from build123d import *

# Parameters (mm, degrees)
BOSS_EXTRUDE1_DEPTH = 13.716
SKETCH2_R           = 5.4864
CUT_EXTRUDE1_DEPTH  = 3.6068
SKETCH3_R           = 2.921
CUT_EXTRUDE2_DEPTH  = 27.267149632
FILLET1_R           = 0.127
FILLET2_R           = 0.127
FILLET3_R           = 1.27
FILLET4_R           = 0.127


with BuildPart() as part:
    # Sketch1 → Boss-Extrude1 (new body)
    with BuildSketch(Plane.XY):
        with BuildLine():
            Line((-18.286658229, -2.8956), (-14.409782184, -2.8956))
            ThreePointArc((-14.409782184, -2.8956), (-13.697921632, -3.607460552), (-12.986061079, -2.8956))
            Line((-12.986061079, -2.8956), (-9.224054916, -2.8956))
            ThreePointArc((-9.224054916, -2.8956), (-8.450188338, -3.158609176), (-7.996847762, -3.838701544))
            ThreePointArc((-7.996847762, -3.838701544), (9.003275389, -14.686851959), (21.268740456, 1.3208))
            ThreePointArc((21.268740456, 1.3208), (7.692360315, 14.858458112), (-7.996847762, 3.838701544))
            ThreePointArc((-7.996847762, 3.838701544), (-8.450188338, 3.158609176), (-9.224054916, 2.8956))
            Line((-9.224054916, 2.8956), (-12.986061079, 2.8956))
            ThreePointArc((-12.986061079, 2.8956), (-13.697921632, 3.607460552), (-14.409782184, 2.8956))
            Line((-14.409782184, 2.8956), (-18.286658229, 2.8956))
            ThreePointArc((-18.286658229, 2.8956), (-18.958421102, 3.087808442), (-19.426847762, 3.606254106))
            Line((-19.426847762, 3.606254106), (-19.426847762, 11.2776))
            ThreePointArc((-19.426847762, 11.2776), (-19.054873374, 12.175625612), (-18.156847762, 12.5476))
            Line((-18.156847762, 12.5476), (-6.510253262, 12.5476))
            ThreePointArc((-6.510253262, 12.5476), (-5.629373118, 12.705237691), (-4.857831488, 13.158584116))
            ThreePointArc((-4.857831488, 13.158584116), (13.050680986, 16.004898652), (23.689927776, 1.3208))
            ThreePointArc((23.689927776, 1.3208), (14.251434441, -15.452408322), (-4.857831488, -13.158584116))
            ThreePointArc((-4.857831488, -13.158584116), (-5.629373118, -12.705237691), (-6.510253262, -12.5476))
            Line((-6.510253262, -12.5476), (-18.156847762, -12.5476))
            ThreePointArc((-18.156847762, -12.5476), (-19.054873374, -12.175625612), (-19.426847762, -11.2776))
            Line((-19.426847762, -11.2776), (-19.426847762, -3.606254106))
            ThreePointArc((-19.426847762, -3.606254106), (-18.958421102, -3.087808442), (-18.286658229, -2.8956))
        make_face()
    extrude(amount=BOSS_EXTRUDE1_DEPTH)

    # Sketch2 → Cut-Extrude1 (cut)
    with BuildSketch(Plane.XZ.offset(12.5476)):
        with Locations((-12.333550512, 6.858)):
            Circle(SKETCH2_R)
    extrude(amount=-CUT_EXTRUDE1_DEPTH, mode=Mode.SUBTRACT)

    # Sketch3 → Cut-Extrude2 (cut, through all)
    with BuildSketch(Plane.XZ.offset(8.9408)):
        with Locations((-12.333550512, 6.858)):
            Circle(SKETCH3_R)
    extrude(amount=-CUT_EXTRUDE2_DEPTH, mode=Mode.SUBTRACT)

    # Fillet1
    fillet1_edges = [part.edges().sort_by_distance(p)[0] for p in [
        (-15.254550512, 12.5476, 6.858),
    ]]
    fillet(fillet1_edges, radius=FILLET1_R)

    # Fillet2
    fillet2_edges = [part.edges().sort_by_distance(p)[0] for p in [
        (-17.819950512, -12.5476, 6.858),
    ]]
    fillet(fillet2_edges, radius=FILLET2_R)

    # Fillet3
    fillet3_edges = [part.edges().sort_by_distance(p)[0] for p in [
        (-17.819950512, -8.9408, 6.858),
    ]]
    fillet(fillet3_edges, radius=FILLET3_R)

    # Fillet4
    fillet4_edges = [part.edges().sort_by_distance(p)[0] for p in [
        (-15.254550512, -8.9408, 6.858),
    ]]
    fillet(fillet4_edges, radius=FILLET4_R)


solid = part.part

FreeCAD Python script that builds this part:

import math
import FreeCAD as App
import Part
import Sketcher
Q = App.Units.Quantity


def edges_at(feature, points):
    """Names of the edges that pass closest to the given points."""
    edges = feature.Shape.Edges
    near = lambda p: min(range(len(edges)), key=lambda i: edges[i].distToShape(Part.Vertex(*p))[0])
    return sorted({f"Edge{near(p) + 1}" for p in points})

doc = App.newDocument("Part")
body = doc.addObject("PartDesign::Body", "Body")

# Sketch on XY plane
sketch1 = body.newObject("Sketcher::SketchObject", "Sketch")
sketch1.AttachmentSupport = (doc.getObject("XY_Plane"), [""])
sketch1.MapMode = "FlatFace"
sketch1.addGeometry([
    Part.LineSegment(App.Vector(-14.4, -2.9, 0), App.Vector(-18.3, -2.9, 0)),  # 0
    Part.ArcOfCircle(Part.Circle(App.Vector(-18.3, -4.2, 0), App.Vector(0, 0, 1), 1.3), math.radians(90), math.radians(154)),  # 1
    Part.LineSegment(App.Vector(-19.4, -3.6, 0), App.Vector(-19.4, -11.3, 0)),  # 2
    Part.ArcOfCircle(Part.Circle(App.Vector(-18.2, -11.3, 0), App.Vector(0, 0, 1), 1.3), math.radians(180), math.radians(270)),  # 3
    Part.LineSegment(App.Vector(-18.2, -12.5, 0), App.Vector(-6.5, -12.5, 0)),  # 4
    Part.ArcOfCircle(Part.Circle(App.Vector(-6.5, -15.1, 0), App.Vector(0, 0, 1), 2.5), math.radians(49), math.radians(90)),  # 5
    Part.ArcOfCircle(Part.Circle(App.Vector(6.4, 0, 0), App.Vector(0, 0, 1), 17.3), math.radians(-131), math.radians(4)),  # 6
    Part.ArcOfCircle(Part.Circle(App.Vector(6.4, 0, 0), App.Vector(0, 0, 1), 17.3), math.radians(4), math.radians(131)),  # 7
    Part.ArcOfCircle(Part.Circle(App.Vector(-6.5, 15.1, 0), App.Vector(0, 0, 1), 2.5), math.radians(-90), math.radians(-49)),  # 8
    Part.LineSegment(App.Vector(-6.5, 12.5, 0), App.Vector(-18.2, 12.5, 0)),  # 9
    Part.ArcOfCircle(Part.Circle(App.Vector(-18.2, 11.3, 0), App.Vector(0, 0, 1), 1.3), math.radians(90), math.radians(180)),  # 10
    Part.LineSegment(App.Vector(-19.4, 11.3, 0), App.Vector(-19.4, 3.6, 0)),  # 11
    Part.ArcOfCircle(Part.Circle(App.Vector(-18.3, 4.2, 0), App.Vector(0, 0, 1), 1.3), math.radians(-154), math.radians(-90)),  # 12
    Part.LineSegment(App.Vector(-18.3, 2.9, 0), App.Vector(-14.4, 2.9, 0)),  # 13
    Part.ArcOfCircle(Part.Circle(App.Vector(-13.7, 2.9, 0), App.Vector(0, 0, 1), 0.7), math.radians(0), math.radians(180)),  # 14
    Part.LineSegment(App.Vector(-13, 2.9, 0), App.Vector(-9.2, 2.9, 0)),  # 15
    Part.ArcOfCircle(Part.Circle(App.Vector(-9.2, 4.2, 0), App.Vector(0, 0, 1), 1.3), math.radians(-90), math.radians(-15)),  # 16
    Part.ArcOfCircle(Part.Circle(App.Vector(6.4, 0, 0), App.Vector(0, 0, 1), 14.9), math.radians(5), math.radians(165)),  # 17
    Part.ArcOfCircle(Part.Circle(App.Vector(6.4, 0, 0), App.Vector(0, 0, 1), 14.9), math.radians(-165), math.radians(5)),  # 18
    Part.ArcOfCircle(Part.Circle(App.Vector(-9.2, -4.2, 0), App.Vector(0, 0, 1), 1.3), math.radians(15), math.radians(90)),  # 19
    Part.LineSegment(App.Vector(-9.2, -2.9, 0), App.Vector(-13, -2.9, 0)),  # 20
    Part.ArcOfCircle(Part.Circle(App.Vector(-13.7, -2.9, 0), App.Vector(0, 0, 1), 0.7), math.radians(-180), math.radians(0)),  # 21
], False)
sketch1.addConstraint([
    Sketcher.Constraint("Tangent", 0, 2, 1, 1),
    Sketcher.Constraint("Coincident", 1, 2, 2, 1),
    Sketcher.Constraint("Tangent", 2, 2, 3, 1),
    Sketcher.Constraint("Tangent", 3, 2, 4, 1),
    Sketcher.Constraint("Tangent", 4, 2, 5, 2),
    Sketcher.Constraint("Tangent", 5, 1, 6, 1),
    Sketcher.Constraint("Tangent", 6, 2, 7, 1),
    Sketcher.Constraint("Tangent", 7, 2, 8, 2),
    Sketcher.Constraint("Tangent", 8, 1, 9, 1),
    Sketcher.Constraint("Tangent", 9, 2, 10, 1),
    Sketcher.Constraint("Tangent", 10, 2, 11, 1),
    Sketcher.Constraint("Coincident", 11, 2, 12, 1),
    Sketcher.Constraint("Tangent", 12, 2, 13, 1),
    Sketcher.Constraint("Coincident", 13, 2, 14, 2),
    Sketcher.Constraint("Coincident", 14, 1, 15, 1),
    Sketcher.Constraint("Tangent", 15, 2, 16, 1),
    Sketcher.Constraint("Tangent", 16, 2, 17, 2),
    Sketcher.Constraint("Tangent", 17, 1, 18, 2),
    Sketcher.Constraint("Tangent", 18, 1, 19, 1),
    Sketcher.Constraint("Tangent", 19, 2, 20, 1),
    Sketcher.Constraint("Coincident", 20, 2, 21, 2),
    Sketcher.Constraint("Coincident", 21, 1, 0, 1),
    Sketcher.Constraint("Horizontal", 0),
    Sketcher.Constraint("Vertical", 2),
    Sketcher.Constraint("Horizontal", 4),
    Sketcher.Constraint("Horizontal", 9),
    Sketcher.Constraint("Vertical", 11),
    Sketcher.Constraint("Horizontal", 13),
    Sketcher.Constraint("Horizontal", 15),
    Sketcher.Constraint("Horizontal", 20),
    Sketcher.Constraint("Coincident", 17, 3, 6, 3),
    Sketcher.Constraint("Equal", 1, 3),
    Sketcher.Constraint("Equal", 6, 7),
    Sketcher.Constraint("Equal", 5, 8),
    Sketcher.Constraint("Equal", 3, 10),
    Sketcher.Constraint("Equal", 10, 12),
    Sketcher.Constraint("Equal", 12, 16),
    Sketcher.Constraint("Equal", 17, 18),
    Sketcher.Constraint("Equal", 16, 19),
    Sketcher.Constraint("Equal", 14, 21),
    Sketcher.Constraint("Symmetric", 5, 3, 8, 3, -1),
    Sketcher.Constraint("Symmetric", 1, 3, 12, 3, -1),
    Sketcher.Constraint("Symmetric", 14, 3, 21, 3, -1),
    Sketcher.Constraint("Horizontal", 12, 3, 16, 3),
    Sketcher.Constraint("Horizontal", 1, 3, 19, 3),
    Sketcher.Constraint("Horizontal", 21, 3, 0, 2),
    Sketcher.Constraint("Horizontal", 6, 2, 17, 1),
    Sketcher.Constraint("Vertical", 3, 3, 10, 3),
    Sketcher.Constraint("Radius", 5, Q("0.1 in")),
    Sketcher.Constraint("Radius", 1, Q("0.05 in")),
    Sketcher.Constraint("DistanceY", 3, 3, 1, 3, Q("0.28 in")),
    Sketcher.Constraint("DistanceY", 1, 3, -1, 1, Q("0.164 in")),
    Sketcher.Constraint("DistanceY", -1, 1, 6, 2, Q("0.052 in")),
    Sketcher.Constraint("Radius", 6, Q("17.32635 mm")),
    Sketcher.Constraint("Radius", 14, Q("0.711861 mm")),
    Sketcher.Constraint("Radius", 17, Q("14.91335 mm")),
    Sketcher.Constraint("DistanceX", 0, 2, 0, 1, Q("3.876876 mm")),
    Sketcher.Constraint("DistanceX", 4, 1, 4, 2, Q("11.646595 mm")),
    Sketcher.Constraint("DistanceX", 15, 1, 15, 2, Q("3.762006 mm")),
    Sketcher.Constraint("DistanceX", 1, 3, -1, 1, Q("18.286658 mm")),
])
pad1 = body.newObject("PartDesign::Pad", "Pad")
pad1.Profile = sketch1
pad1.Length = Q("0.54 in")

# Sketch on XZ plane
sketch2 = body.newObject("Sketcher::SketchObject", "Sketch001")
sketch2.AttachmentSupport = (doc.getObject("XZ_Plane"), [""])
sketch2.MapMode = "FlatFace"
sketch2.AttachmentOffset = App.Placement(App.Vector(0, 0, 0.494 * 25.4), App.Rotation())
sketch2.addGeometry(Part.Circle(App.Vector(-12, 7, 0), App.Vector(0, 0, 1), 5), False)
sketch2.addConstraint([
    Sketcher.Constraint("Diameter", 0, Q("0.432 in")),
    Sketcher.Constraint("DistanceY", -1, 1, 0, 3, Q("0.27 in")),
    Sketcher.Constraint("DistanceX", 0, 3, -1, 1, Q("12.333551 mm")),
])
pocket1 = body.newObject("PartDesign::Pocket", "Pocket")
pocket1.Profile = sketch2
pocket1.Length = Q("0.142 in")

# Sketch on XZ plane
sketch3 = body.newObject("Sketcher::SketchObject", "Sketch002")
sketch3.AttachmentSupport = (doc.getObject("XZ_Plane"), [""])
sketch3.MapMode = "FlatFace"
sketch3.AttachmentOffset = App.Placement(App.Vector(0, 0, 0.352 * 25.4), App.Rotation())
sketch3.addGeometry(Part.Circle(App.Vector(-12.3, 6.9, 0), App.Vector(0, 0, 1), 2.9), False)
sketch3.addConstraint([
    Sketcher.Constraint("Diameter", 0, Q("0.23 in")),
    Sketcher.Constraint("DistanceY", -1, 1, 0, 3, Q("0.27 in")),
    Sketcher.Constraint("DistanceX", 0, 3, -1, 1, Q("12.333551 mm")),
])
pocket2 = body.newObject("PartDesign::Pocket", "Pocket001")
pocket2.Profile = sketch3
pocket2.Type = "ThroughAll"
doc.recompute()

fillet = body.newObject("PartDesign::Fillet", "Fillet")
fillet.Base = (pocket2, edges_at(pocket2, [(-15.255, 12.548, 6.858)]))
fillet.Radius = Q("0.005 in")
doc.recompute()

fillet2 = body.newObject("PartDesign::Fillet", "Fillet001")
fillet2.Base = (fillet, edges_at(fillet, [(-17.82, -12.548, 6.858)]))
fillet2.Radius = Q("0.005 in")
doc.recompute()

fillet3 = body.newObject("PartDesign::Fillet", "Fillet002")
fillet3.Base = (fillet2, edges_at(fillet2, [(-17.82, -8.941, 6.858)]))
fillet3.Radius = Q("0.05 in")
doc.recompute()

fillet4 = body.newObject("PartDesign::Fillet", "Fillet003")
fillet4.Base = (fillet3, edges_at(fillet3, [(-15.255, -8.941, 6.858)]))
fillet4.Radius = Q("0.005 in")

doc.recompute()
